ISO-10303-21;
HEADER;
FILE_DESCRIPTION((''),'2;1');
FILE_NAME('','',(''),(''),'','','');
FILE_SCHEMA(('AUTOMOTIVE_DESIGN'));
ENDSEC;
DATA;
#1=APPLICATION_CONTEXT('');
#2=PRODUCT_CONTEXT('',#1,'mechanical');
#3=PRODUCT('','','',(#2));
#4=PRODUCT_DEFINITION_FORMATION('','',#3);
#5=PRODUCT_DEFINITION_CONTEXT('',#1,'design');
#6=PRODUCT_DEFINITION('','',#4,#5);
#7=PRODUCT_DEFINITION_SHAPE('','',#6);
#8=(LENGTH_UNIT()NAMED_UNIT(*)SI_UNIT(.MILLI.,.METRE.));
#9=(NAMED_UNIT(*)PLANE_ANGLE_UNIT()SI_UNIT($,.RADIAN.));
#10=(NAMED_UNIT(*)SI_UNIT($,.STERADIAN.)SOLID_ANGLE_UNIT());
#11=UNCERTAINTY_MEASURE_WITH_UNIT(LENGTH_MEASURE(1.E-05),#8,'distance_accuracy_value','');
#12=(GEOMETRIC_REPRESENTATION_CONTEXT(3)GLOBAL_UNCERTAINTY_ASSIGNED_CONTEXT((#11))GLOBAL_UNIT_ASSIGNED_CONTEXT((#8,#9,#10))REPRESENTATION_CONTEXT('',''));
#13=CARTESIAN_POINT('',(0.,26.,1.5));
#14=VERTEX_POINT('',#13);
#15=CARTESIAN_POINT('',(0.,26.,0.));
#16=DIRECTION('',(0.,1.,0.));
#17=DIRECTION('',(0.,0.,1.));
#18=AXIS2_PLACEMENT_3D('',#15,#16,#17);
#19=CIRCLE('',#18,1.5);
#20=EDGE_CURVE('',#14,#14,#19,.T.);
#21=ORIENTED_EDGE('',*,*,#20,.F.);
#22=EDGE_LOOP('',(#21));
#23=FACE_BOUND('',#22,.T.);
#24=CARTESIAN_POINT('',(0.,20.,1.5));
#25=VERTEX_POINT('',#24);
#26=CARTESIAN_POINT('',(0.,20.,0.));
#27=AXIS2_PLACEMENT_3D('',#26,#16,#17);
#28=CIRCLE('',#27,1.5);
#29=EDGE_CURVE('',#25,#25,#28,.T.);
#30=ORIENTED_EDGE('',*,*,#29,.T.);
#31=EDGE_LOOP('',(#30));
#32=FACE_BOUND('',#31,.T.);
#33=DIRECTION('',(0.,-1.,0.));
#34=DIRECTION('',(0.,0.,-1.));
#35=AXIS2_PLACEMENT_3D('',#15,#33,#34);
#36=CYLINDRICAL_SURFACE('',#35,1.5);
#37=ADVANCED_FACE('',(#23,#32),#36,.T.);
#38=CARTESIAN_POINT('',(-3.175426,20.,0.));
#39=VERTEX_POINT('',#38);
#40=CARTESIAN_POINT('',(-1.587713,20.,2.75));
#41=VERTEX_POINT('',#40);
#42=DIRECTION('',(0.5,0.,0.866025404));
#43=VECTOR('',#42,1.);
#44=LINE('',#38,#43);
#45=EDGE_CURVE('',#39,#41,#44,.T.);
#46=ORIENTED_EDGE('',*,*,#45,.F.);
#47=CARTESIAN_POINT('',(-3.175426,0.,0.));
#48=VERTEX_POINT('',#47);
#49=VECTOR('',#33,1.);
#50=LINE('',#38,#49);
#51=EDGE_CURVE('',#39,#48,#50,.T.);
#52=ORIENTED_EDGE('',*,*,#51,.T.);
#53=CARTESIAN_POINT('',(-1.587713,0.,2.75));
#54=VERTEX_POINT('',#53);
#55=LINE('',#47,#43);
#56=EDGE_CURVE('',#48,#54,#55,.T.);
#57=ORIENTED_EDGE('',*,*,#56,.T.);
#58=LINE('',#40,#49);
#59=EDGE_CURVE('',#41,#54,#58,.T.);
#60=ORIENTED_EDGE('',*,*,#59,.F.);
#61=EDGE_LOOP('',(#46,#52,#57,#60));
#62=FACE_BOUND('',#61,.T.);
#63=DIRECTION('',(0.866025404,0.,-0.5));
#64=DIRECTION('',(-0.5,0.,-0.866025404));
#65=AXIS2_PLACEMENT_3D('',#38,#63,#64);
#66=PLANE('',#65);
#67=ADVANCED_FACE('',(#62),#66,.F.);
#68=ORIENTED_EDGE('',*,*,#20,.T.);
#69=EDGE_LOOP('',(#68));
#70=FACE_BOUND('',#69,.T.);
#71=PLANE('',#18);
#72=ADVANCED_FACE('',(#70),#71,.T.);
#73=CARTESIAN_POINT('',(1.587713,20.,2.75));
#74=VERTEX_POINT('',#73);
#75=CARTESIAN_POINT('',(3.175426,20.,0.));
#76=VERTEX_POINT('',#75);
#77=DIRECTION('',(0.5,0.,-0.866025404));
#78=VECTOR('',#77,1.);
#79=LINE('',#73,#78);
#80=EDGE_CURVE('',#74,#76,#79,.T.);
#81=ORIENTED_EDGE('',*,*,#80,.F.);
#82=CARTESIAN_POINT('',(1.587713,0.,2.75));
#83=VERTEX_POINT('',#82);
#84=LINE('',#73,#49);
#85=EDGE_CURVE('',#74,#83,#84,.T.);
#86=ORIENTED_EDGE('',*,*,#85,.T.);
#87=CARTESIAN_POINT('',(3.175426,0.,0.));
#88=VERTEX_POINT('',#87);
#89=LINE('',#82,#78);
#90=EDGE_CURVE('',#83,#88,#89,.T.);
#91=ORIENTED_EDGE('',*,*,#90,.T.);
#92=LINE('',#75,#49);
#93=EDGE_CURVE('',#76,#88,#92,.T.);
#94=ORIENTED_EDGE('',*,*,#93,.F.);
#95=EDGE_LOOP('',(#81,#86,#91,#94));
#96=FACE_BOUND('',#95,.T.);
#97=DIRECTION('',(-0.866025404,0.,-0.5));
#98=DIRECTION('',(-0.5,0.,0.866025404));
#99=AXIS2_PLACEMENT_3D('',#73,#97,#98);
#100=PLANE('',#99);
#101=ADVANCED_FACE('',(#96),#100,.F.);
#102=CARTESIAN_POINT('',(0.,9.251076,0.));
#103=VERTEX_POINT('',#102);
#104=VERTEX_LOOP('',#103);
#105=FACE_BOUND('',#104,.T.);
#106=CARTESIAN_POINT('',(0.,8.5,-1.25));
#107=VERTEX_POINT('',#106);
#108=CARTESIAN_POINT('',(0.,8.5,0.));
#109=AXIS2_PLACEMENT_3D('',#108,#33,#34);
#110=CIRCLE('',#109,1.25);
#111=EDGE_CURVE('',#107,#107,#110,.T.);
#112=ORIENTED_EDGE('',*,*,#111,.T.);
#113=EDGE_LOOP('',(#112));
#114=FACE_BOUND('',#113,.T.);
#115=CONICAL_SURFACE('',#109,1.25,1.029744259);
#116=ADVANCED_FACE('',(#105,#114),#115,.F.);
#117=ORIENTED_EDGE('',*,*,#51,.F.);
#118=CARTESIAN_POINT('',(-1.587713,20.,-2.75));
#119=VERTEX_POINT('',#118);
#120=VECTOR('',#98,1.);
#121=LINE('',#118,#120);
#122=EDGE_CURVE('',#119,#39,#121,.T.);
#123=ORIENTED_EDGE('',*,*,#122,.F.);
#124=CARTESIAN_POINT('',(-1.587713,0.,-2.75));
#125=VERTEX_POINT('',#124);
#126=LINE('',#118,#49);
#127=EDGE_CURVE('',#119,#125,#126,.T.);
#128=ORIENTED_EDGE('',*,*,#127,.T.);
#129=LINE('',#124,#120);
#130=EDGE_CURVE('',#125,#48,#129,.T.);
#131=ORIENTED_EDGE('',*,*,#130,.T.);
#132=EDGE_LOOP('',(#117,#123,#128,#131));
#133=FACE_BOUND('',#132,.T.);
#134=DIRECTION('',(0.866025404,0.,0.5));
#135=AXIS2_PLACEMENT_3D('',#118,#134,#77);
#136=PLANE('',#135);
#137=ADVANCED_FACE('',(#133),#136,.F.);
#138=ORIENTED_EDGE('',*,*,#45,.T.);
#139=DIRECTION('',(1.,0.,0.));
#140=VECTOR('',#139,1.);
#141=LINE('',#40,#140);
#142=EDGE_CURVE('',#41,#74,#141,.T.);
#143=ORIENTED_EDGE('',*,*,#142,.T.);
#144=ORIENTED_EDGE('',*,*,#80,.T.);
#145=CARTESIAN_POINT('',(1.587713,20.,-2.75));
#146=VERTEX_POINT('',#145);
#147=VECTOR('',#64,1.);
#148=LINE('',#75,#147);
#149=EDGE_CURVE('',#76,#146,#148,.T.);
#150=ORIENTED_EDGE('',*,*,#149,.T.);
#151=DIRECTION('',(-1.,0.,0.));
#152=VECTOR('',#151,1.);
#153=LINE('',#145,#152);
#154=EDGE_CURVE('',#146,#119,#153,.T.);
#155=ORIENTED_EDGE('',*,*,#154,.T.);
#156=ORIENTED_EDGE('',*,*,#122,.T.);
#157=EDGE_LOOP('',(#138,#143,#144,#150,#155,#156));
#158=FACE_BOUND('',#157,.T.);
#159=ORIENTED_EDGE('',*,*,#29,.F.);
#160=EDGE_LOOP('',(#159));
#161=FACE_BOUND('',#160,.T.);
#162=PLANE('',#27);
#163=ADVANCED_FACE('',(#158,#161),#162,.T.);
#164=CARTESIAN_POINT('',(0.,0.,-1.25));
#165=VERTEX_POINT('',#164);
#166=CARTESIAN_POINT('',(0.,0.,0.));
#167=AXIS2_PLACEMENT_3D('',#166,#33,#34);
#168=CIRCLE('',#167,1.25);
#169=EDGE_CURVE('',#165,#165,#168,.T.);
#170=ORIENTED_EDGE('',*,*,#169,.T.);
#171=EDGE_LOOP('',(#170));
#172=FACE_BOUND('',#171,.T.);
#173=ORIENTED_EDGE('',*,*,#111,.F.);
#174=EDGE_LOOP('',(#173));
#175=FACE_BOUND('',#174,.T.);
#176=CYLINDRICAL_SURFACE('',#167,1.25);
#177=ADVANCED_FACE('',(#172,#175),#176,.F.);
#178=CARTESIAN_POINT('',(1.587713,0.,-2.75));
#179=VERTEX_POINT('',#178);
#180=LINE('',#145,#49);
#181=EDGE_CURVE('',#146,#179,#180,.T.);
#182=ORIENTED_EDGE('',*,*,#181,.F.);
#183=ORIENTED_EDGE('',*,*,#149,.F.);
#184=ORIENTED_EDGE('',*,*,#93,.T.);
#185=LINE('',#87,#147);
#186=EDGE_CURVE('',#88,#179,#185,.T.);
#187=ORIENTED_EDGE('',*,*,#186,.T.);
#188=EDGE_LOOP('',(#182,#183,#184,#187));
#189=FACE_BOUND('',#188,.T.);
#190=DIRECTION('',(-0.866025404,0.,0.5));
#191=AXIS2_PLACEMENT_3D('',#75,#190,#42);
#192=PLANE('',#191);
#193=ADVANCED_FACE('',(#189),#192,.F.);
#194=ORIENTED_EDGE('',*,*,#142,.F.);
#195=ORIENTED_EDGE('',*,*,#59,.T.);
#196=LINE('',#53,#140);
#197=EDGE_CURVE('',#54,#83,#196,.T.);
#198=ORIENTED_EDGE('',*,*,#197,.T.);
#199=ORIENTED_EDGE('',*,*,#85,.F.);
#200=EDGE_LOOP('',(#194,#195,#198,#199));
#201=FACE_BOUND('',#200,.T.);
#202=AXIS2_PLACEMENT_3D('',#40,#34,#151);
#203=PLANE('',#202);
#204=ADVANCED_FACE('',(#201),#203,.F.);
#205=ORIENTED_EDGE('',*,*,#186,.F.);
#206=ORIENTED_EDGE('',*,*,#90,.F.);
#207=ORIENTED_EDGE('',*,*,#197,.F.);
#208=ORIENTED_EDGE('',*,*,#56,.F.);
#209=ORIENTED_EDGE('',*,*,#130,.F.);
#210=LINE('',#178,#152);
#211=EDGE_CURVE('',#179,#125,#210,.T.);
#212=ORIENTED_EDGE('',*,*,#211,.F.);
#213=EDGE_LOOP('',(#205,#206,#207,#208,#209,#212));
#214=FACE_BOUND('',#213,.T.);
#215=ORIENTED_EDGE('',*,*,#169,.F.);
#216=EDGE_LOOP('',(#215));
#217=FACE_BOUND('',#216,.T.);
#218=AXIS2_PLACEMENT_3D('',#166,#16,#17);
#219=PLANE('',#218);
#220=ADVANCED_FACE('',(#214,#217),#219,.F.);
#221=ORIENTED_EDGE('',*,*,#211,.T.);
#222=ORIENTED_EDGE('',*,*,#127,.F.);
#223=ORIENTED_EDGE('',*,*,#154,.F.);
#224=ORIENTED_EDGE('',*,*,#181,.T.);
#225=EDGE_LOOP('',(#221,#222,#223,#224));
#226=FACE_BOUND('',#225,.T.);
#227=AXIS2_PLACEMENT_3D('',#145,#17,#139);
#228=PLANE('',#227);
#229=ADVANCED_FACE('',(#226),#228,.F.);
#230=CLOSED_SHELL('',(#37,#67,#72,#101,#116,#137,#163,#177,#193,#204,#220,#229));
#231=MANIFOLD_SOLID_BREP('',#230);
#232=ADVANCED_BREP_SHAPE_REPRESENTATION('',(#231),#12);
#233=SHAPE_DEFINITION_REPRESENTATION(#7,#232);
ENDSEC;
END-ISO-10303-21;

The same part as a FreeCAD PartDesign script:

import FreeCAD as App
import Part
import Sketcher
Q = App.Units.Quantity


def add_polygon(sketch, points):
    """Adds a closed chain of lines whose ends are joined by coincident constraints."""
    first, n = sketch.GeometryCount, len(points)
    for a, b in zip(points, points[1:] + points[:1]):
        sketch.addGeometry(Part.LineSegment(App.Vector(*a, 0), App.Vector(*b, 0)), False)
    for i in range(n):
        sketch.addConstraint(Sketcher.Constraint("Coincident", first + i, 2, first + (i + 1) % n, 1))

doc = App.newDocument("Part")
body = doc.addObject("PartDesign::Body", "Body")

sketch1 = body.newObject("Sketcher::SketchObject", "Sketch")
sketch1.AttachmentSupport = (doc.getObject("XZ_Plane"), [""])
sketch1.MapMode = "FlatFace"
add_polygon(sketch1, [(1.6, 2.8), (3.2, 0), (1.6, -2.8), (-1.6, -2.8), (-3.2, 0), (-1.6, 2.8)])
sketch1.addConstraint([
    Sketcher.Constraint("Horizontal", 2),
    Sketcher.Constraint("Horizontal", 5),
    Sketcher.Constraint("Symmetric", 0, 2, 3, 2, -1, 1),
    Sketcher.Constraint("Symmetric", 1, 2, 4, 2, -1, 1),
    Sketcher.Constraint("PointOnObject", 0, 2, -1),
    Sketcher.Constraint("Parallel", 0, 3),
    Sketcher.Constraint("Vertical", 2, 2, 4, 2),
    Sketcher.Constraint("Angle", 0, Q("-60 deg")),
    Sketcher.Constraint("DistanceY", 2, 2, 4, 2, 5.5),
    Sketcher.Constraint("DistanceX", 2, 2, 2, 1, 3.175426),
])
pad1 = body.newObject("PartDesign::Pad", "Pad")
pad1.Profile = sketch1
pad1.Length = 20
pad1.Reversed = True

sketch2 = body.newObject("Sketcher::SketchObject", "Sketch001")
sketch2.AttachmentSupport = (doc.getObject("XZ_Plane"), [""])
sketch2.MapMode = "FlatFace"
sketch2.AttachmentOffset = App.Placement(App.Vector(0, 0, -20), App.Rotation())
sketch2.addGeometry(Part.Circle(App.Vector(0, 0, 0), App.Vector(0, 0, 1), 1.5), False)
sketch2.addConstraint([
    Sketcher.Constraint("Coincident", 0, 3, -1, 1),
    Sketcher.Constraint("Diameter", 0, 3.0),
])
pad2 = body.newObject("PartDesign::Pad", "Pad001")
pad2.Profile = sketch2
pad2.Length = 6
pad2.Reversed = True

sketch3 = body.newObject("Sketcher::SketchObject", "Sketch002")
sketch3.AttachmentSupport = (doc.getObject("XZ_Plane"), [""])
sketch3.MapMode = "FlatFace"
sketch3.addGeometry(Part.Circle(App.Vector(0, 0, 0), App.Vector(0, 0, 1), 1.2), False)
sketch3.addConstraint([
    Sketcher.Constraint("Coincident", 0, 3, -1, 1),
    Sketcher.Constraint("Diameter", 0, 2.5),
])
doc.recompute()
hole = body.newObject("PartDesign::Hole", "Hole")
hole.Profile = sketch3
hole.ThreadType = "None"
hole.Diameter = 2.5
hole.DepthType = "Dimension"
hole.Depth = 8.5
hole.DrillPoint = "Angled"
hole.DrillPointAngle = 118

doc.recompute()
